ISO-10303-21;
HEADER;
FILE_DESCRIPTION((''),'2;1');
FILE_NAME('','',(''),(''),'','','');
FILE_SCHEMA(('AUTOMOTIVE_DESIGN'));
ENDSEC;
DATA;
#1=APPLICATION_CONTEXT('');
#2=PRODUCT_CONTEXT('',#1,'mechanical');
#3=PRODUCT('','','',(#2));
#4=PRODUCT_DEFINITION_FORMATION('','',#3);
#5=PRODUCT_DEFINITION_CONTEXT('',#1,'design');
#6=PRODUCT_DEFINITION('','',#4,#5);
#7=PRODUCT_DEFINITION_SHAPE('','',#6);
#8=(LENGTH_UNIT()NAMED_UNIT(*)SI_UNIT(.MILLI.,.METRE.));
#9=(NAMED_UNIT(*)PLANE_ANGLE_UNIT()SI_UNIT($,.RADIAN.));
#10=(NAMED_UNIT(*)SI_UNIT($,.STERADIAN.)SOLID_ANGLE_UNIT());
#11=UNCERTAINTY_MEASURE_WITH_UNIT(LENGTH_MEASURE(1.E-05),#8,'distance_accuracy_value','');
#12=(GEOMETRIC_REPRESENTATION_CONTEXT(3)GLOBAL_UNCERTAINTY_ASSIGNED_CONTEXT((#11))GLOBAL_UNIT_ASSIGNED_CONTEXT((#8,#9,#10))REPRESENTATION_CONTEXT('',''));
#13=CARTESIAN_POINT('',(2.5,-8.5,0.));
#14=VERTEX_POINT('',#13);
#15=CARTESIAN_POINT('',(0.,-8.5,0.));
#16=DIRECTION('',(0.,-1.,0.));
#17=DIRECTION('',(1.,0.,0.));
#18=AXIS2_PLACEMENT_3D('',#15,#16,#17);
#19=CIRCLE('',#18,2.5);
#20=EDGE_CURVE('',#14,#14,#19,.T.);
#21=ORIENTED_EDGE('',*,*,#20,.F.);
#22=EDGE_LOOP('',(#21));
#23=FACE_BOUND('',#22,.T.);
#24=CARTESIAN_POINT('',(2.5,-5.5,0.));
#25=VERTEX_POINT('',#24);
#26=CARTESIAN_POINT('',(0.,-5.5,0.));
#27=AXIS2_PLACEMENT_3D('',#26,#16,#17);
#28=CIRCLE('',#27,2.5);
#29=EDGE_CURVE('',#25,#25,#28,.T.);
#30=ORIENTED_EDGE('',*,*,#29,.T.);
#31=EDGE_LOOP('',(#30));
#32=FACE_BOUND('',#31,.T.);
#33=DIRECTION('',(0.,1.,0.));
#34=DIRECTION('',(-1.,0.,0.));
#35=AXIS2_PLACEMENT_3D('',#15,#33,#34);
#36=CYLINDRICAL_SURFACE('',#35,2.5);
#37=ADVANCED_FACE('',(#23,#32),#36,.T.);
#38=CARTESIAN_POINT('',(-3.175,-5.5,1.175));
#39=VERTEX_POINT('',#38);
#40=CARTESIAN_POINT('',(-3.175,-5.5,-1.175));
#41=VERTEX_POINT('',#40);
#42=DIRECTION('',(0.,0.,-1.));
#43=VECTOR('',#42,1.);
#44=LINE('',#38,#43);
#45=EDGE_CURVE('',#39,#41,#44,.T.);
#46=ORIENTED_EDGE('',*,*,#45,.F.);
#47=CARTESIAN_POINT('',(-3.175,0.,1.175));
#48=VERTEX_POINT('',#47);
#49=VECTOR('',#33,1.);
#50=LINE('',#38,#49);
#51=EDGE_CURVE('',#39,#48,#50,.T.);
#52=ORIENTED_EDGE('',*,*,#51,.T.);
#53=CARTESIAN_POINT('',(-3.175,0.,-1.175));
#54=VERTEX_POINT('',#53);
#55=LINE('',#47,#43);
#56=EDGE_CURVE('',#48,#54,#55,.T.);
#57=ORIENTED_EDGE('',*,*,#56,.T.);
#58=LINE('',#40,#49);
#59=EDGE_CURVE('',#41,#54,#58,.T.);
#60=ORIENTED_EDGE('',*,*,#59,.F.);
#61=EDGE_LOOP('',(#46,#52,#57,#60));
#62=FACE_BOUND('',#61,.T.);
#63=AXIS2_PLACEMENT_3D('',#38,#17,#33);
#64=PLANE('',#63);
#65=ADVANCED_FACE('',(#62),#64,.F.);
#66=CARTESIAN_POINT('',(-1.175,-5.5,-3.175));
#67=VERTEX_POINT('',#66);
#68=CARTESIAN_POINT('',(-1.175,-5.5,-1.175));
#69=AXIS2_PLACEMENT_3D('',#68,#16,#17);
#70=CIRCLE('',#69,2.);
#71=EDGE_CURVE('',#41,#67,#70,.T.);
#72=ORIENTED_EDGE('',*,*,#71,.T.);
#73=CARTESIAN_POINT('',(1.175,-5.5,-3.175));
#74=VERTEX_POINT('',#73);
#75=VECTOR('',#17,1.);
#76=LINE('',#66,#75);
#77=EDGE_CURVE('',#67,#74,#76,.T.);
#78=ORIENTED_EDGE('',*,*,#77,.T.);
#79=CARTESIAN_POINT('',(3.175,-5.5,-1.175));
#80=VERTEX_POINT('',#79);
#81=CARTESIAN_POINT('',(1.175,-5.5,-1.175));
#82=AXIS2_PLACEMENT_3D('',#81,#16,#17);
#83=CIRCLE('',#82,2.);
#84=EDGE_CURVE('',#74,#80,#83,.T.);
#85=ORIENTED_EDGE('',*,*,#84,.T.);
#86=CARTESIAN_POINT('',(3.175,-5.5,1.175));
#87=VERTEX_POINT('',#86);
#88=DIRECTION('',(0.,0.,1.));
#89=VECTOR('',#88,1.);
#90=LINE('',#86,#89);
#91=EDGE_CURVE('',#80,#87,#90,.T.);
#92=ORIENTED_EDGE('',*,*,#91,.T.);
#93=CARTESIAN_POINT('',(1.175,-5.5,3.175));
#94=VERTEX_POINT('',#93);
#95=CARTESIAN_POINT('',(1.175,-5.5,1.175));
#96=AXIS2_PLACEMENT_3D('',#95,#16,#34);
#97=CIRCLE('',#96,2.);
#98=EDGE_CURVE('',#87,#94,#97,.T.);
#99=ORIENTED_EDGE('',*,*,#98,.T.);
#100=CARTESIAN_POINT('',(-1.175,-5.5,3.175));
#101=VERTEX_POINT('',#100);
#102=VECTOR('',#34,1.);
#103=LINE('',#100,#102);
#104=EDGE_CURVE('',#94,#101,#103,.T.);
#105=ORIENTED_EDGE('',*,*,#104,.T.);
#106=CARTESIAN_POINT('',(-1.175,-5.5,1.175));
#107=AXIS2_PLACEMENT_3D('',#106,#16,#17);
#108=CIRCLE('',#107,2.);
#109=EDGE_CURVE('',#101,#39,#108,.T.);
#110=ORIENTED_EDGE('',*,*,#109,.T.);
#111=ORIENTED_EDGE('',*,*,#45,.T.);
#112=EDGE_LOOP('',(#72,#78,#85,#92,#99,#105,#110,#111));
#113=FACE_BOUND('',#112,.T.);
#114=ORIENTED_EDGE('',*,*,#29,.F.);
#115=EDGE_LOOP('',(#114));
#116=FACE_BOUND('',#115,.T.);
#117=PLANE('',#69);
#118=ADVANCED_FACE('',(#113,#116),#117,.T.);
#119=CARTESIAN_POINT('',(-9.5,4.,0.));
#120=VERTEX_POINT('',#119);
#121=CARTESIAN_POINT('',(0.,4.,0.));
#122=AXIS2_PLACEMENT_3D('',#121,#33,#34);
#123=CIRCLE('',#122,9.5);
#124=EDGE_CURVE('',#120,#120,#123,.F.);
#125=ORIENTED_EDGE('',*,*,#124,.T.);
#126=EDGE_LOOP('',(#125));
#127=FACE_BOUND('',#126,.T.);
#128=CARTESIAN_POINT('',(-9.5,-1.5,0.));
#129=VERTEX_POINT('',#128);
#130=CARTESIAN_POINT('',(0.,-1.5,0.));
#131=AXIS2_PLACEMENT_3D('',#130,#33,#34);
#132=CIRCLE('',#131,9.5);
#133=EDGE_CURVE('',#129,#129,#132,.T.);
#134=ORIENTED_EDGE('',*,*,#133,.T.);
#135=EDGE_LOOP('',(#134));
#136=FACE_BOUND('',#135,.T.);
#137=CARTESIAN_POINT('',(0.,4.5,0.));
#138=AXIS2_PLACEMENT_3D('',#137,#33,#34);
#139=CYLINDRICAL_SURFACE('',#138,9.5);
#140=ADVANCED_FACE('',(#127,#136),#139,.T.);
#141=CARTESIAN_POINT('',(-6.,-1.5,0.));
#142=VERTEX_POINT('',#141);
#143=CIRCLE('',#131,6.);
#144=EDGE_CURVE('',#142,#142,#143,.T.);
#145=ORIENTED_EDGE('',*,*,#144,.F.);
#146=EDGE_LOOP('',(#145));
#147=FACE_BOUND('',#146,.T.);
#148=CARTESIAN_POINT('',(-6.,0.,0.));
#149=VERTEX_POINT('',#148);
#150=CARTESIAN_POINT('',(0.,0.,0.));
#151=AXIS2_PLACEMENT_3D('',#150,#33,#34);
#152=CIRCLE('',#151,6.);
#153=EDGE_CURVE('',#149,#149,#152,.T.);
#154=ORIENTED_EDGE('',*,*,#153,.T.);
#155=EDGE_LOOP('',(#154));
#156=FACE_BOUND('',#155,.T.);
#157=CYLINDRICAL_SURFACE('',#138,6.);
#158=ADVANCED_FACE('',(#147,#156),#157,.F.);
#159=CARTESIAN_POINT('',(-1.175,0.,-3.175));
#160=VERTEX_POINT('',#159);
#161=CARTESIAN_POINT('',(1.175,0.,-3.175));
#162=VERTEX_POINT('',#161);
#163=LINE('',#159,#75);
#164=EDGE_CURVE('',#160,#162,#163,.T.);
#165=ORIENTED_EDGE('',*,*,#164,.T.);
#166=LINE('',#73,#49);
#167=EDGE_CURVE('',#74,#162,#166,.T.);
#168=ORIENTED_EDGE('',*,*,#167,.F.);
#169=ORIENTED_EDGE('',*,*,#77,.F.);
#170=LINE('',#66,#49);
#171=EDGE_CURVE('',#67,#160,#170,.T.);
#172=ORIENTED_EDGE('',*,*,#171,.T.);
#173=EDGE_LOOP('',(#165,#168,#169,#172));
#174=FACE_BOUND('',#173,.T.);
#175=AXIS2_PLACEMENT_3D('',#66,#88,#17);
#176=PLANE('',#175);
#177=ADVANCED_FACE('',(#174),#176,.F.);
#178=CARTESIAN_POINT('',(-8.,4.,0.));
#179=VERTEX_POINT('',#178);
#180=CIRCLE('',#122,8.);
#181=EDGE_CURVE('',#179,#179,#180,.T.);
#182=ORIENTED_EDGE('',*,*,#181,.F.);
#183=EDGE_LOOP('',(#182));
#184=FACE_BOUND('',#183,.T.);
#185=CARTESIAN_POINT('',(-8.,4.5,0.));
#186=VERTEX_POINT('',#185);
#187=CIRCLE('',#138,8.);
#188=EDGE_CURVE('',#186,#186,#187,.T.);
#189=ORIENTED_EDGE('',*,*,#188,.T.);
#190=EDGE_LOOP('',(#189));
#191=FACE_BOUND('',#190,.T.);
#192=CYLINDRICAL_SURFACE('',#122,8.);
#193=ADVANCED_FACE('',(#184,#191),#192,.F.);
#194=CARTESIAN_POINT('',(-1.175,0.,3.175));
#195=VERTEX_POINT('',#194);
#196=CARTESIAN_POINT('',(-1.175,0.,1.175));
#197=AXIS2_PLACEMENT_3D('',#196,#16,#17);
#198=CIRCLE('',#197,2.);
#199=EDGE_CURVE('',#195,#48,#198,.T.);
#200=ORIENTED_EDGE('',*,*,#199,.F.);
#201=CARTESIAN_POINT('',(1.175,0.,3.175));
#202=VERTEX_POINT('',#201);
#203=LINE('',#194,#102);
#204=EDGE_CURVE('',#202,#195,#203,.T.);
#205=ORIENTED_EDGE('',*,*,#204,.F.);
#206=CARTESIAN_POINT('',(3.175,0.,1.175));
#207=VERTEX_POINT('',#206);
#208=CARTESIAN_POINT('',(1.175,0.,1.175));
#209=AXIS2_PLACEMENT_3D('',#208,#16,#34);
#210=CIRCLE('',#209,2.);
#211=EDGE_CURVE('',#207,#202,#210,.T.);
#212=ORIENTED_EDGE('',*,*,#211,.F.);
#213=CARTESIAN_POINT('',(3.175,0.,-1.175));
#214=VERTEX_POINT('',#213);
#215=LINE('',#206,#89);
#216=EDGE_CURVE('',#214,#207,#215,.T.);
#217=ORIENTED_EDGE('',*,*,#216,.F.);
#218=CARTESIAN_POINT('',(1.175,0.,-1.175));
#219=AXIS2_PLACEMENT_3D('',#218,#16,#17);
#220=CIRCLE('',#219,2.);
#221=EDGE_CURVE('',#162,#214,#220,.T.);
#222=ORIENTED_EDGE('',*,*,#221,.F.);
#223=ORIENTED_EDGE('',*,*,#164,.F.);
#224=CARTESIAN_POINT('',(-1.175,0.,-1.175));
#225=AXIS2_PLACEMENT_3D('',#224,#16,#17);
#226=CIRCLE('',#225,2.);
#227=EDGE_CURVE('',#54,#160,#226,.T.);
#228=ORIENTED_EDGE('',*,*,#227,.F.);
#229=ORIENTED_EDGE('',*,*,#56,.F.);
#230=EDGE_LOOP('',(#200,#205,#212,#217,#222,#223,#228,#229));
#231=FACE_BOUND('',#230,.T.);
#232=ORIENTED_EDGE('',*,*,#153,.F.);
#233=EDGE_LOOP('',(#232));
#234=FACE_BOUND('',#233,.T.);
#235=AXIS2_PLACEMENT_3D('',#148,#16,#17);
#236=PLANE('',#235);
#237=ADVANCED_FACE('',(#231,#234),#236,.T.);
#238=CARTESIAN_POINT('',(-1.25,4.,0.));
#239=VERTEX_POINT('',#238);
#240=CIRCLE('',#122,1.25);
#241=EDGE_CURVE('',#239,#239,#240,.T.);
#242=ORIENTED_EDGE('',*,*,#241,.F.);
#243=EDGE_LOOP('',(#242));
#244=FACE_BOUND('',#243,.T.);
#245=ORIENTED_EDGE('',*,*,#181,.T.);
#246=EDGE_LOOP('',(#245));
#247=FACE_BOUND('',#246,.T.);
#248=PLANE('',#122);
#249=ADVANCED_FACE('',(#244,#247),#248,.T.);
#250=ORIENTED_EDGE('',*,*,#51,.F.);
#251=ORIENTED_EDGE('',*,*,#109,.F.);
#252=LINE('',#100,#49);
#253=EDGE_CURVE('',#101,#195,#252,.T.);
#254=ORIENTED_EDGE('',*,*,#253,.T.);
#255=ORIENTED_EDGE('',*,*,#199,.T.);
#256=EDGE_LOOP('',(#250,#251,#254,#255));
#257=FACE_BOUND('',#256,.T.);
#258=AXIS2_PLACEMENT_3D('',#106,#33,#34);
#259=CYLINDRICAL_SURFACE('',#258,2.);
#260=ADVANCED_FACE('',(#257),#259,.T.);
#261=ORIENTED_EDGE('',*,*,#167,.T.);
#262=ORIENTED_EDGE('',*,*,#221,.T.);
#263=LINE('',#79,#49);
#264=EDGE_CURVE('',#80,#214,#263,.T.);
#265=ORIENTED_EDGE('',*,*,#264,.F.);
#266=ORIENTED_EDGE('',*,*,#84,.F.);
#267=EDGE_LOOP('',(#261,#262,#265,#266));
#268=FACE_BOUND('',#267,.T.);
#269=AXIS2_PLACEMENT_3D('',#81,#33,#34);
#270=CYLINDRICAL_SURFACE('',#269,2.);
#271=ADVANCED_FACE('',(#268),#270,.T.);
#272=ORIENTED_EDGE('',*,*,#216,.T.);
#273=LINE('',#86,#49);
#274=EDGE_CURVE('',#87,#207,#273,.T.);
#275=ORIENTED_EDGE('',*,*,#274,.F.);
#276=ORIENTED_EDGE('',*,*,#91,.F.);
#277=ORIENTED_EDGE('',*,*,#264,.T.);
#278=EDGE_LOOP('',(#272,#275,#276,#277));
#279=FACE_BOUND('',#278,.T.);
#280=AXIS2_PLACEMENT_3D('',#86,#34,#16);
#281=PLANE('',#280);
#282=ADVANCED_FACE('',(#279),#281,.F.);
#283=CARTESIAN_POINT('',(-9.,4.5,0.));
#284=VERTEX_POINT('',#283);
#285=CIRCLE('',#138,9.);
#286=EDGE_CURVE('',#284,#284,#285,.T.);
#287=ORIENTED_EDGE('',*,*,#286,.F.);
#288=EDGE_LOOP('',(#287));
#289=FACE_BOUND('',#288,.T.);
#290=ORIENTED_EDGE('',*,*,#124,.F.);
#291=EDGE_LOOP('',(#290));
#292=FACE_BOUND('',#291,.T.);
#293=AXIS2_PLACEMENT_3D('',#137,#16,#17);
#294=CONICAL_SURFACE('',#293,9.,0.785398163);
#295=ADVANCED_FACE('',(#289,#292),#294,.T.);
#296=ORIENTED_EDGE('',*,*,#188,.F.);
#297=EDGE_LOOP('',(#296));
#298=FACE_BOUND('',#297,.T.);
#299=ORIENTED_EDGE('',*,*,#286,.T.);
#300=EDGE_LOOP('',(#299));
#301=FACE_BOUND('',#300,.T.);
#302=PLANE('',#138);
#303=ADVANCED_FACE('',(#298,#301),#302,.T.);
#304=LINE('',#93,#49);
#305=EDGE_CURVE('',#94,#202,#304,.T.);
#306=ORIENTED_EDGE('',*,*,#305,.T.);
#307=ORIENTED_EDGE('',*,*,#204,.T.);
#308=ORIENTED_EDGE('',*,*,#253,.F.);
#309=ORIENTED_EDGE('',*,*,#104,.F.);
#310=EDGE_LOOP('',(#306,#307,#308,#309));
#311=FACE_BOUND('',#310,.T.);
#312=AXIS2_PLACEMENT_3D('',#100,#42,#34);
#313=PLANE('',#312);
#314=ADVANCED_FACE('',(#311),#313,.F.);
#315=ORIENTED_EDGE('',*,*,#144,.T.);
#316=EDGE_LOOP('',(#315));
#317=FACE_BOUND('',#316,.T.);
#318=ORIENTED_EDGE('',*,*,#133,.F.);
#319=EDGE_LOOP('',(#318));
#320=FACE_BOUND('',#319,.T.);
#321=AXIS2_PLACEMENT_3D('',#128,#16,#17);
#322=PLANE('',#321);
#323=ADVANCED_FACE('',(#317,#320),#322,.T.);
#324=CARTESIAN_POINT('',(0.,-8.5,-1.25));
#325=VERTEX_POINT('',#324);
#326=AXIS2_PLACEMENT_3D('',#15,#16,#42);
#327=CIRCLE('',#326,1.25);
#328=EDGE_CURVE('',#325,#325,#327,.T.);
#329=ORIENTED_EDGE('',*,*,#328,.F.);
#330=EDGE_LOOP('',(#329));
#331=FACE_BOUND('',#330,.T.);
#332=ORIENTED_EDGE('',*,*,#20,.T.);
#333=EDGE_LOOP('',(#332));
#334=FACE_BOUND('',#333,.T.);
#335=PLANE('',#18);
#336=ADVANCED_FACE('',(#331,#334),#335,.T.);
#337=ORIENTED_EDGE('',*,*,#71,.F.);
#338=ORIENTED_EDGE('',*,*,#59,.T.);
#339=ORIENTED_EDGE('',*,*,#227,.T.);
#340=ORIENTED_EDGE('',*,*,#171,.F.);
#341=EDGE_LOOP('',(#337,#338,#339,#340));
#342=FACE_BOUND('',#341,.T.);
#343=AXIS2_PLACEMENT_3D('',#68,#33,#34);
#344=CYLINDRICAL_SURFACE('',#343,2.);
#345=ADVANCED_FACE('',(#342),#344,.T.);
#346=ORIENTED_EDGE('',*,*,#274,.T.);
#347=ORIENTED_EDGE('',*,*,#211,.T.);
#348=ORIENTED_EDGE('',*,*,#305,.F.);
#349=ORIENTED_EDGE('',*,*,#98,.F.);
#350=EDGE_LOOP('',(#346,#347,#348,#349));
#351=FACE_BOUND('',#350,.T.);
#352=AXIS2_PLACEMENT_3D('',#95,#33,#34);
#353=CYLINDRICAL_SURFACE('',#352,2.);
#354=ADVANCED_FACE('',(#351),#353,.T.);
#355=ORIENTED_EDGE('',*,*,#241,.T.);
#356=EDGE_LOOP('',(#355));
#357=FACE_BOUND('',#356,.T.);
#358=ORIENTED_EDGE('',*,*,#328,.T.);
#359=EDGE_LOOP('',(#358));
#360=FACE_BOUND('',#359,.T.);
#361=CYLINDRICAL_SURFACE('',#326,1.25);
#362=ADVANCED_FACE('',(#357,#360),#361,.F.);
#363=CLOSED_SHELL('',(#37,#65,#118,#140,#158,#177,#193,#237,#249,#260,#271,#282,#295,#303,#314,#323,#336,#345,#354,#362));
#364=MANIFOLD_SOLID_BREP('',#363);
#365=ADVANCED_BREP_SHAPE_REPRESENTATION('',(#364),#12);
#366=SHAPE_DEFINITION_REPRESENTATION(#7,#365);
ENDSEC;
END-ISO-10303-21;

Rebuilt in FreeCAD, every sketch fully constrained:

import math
import FreeCAD as App
import Part
import Sketcher

V = App.Vector


def edges_at(feature, points):
    """Names of the edges that pass closest to the given points."""
    edges = feature.Shape.Edges
    near = lambda p: min(range(len(edges)), key=lambda i: edges[i].distToShape(Part.Vertex(*p))[0])
    return sorted({f"Edge{near(p) + 1}" for p in points})


def add_polygon(sketch, points):
    """Adds a closed chain of lines whose ends are joined by coincident constraints."""
    first, n = sketch.GeometryCount, len(points)
    for a, b in zip(points, points[1:] + points[:1]):
        sketch.addGeometry(Part.LineSegment(App.Vector(*a, 0), App.Vector(*b, 0)), False)
    for i in range(n):
        sketch.addConstraint(Sketcher.Constraint("Coincident", first + i, 2, first + (i + 1) % n, 1))

doc = App.newDocument("Part")
body = doc.addObject("PartDesign::Body", "Body")

sketch1 = body.newObject("Sketcher::SketchObject", "Sketch")
sketch1.AttachmentSupport = (doc.getObject("XY_Plane"), [""])
sketch1.MapMode = "FlatFace"
add_polygon(sketch1, [(0, 4.5), (-9.5, 4.5), (-9.5, -1.5), (-6, -1.5), (-6, 0), (0, 0)])
sketch1.addConstraint([
    Sketcher.Constraint("Horizontal", 0),
    Sketcher.Constraint("Vertical", 1),
    Sketcher.Constraint("Horizontal", 2),
    Sketcher.Constraint("Vertical", 3),
    Sketcher.Constraint("Horizontal", 4),
    Sketcher.Constraint("Vertical", 5),
    Sketcher.Constraint("Coincident", 4, 2, -1, 1),
    Sketcher.Constraint("Equal", 4, 1),
    Sketcher.Constraint("DistanceX", 4, 1, 4, 2, 6.0),
    Sketcher.Constraint("DistanceX", 0, 2, 0, 1, 9.5),
    Sketcher.Constraint("DistanceY", 3, 1, 3, 2, 1.5),
])
revolution = body.newObject("PartDesign::Revolution", "Revolution")
revolution.Profile = sketch1
revolution.ReferenceAxis = (sketch1, ["V_Axis"])
revolution.Angle = 360
doc.recompute()

chamfer = body.newObject("PartDesign::Chamfer", "Chamfer")
chamfer.Base = (revolution, edges_at(revolution, [(9.5, 4.5, 0)]))
chamfer.Size = 0.5

sketch2 = body.newObject("Sketcher::SketchObject", "Sketch001")
sketch2.AttachmentSupport = (doc.getObject("XZ_Plane"), [""])
sketch2.MapMode = "FlatFace"
sketch2.addGeometry([
    Part.LineSegment(V(1.2, 3.2, 0), V(-1.2, 3.2, 0)),
    Part.ArcOfCircle(Part.Circle(V(-1.2, 1.2, 0), V(0, 0, 1), 2), math.radians(90), math.radians(180)),
    Part.LineSegment(V(-3.2, 1.2, 0), V(-3.2, -1.2, 0)),
    Part.ArcOfCircle(Part.Circle(V(-1.2, -1.2, 0), V(0, 0, 1), 2), math.radians(-180), math.radians(-90)),
    Part.LineSegment(V(-1.2, -3.2, 0), V(1.2, -3.2, 0)),
    Part.ArcOfCircle(Part.Circle(V(1.2, -1.2, 0), V(0, 0, 1), 2), math.radians(-90), math.radians(0)),
    Part.LineSegment(V(3.2, -1.2, 0), V(3.2, 1.2, 0)),
    Part.ArcOfCircle(Part.Circle(V(1.2, 1.2, 0), V(0, 0, 1), 2), math.radians(0), math.radians(90)),
], False)
sketch2.addConstraint([
    Sketcher.Constraint("Tangent", 0, 2, 1, 1),
    Sketcher.Constraint("Tangent", 1, 2, 2, 1),
    Sketcher.Constraint("Tangent", 2, 2, 3, 1),
    Sketcher.Constraint("Tangent", 3, 2, 4, 1),
    Sketcher.Constraint("Tangent", 4, 2, 5, 1),
    Sketcher.Constraint("Tangent", 5, 2, 6, 1),
    Sketcher.Constraint("Tangent", 6, 2, 7, 1),
    Sketcher.Constraint("Tangent", 7, 2, 0, 1),
    Sketcher.Constraint("Horizontal", 0),
    Sketcher.Constraint("Vertical", 2),
    Sketcher.Constraint("Horizontal", 4),
    Sketcher.Constraint("Vertical", 6),
    Sketcher.Constraint("Equal", 1, 3),
    Sketcher.Constraint("Equal", 3, 5),
    Sketcher.Constraint("Equal", 5, 7),
    Sketcher.Constraint("Symmetric", 1, 3, 5, 3, -1, 1),
    Sketcher.Constraint("Equal", 4, 2),
    Sketcher.Constraint("Radius", 1, 2.0),
    Sketcher.Constraint("DistanceX", 0, 2, 0, 1, 2.35),
])
pad1 = body.newObject("PartDesign::Pad", "Pad")
pad1.Profile = sketch2
pad1.Length = 5.5

sketch3 = body.newObject("Sketcher::SketchObject", "Sketch002")
sketch3.AttachmentSupport = (doc.getObject("XZ_Plane"), [""])
sketch3.MapMode = "FlatFace"
sketch3.AttachmentOffset = App.Placement(V(0, 0, -4.5), App.Rotation())
sketch3.addGeometry(Part.Circle(V(0, 0, 0), V(0, 0, 1), 8), False)
sketch3.addConstraint([
    Sketcher.Constraint("Coincident", 0, 3, -1, 1),
    Sketcher.Constraint("Diameter", 0, 16.0),
])
pocket1 = body.newObject("PartDesign::Pocket", "Pocket")
pocket1.Profile = sketch3
pocket1.Length = 0.5
pocket1.Reversed = True

sketch4 = body.newObject("Sketcher::SketchObject", "Sketch003")
sketch4.AttachmentSupport = (doc.getObject("XZ_Plane"), [""])
sketch4.MapMode = "FlatFace"
sketch4.AttachmentOffset = App.Placement(V(0, 0, 5.5), App.Rotation())
sketch4.addGeometry(Part.Circle(V(0, 0, 0), V(0, 0, 1), 2.5), False)
sketch4.addConstraint([
    Sketcher.Constraint("Coincident", 0, 3, -1, 1),
    Sketcher.Constraint("Diameter", 0, 5.0),
])
pad2 = body.newObject("PartDesign::Pad", "Pad001")
pad2.Profile = sketch4
pad2.Length = 3

sketch5 = body.newObject("Sketcher::SketchObject", "Sketch004")
sketch5.AttachmentSupport = (doc.getObject("XZ_Plane"), [""])
sketch5.MapMode = "FlatFace"
sketch5.AttachmentOffset = App.Placement(V(0, 0, 8.5), App.Rotation())
sketch5.addGeometry(Part.Circle(V(0, 0, 0), V(0, 0, 1), 1.2), False)
sketch5.addConstraint([
    Sketcher.Constraint("Coincident", 0, 3, -1, 1),
    Sketcher.Constraint("Diameter", 0, 2.5),
])
doc.recompute()
hole = body.newObject("PartDesign::Hole", "Hole")
hole.Profile = sketch5
hole.ThreadType = "None"
hole.Diameter = 2.5
hole.DepthType = "ThroughAll"

doc.recompute()
